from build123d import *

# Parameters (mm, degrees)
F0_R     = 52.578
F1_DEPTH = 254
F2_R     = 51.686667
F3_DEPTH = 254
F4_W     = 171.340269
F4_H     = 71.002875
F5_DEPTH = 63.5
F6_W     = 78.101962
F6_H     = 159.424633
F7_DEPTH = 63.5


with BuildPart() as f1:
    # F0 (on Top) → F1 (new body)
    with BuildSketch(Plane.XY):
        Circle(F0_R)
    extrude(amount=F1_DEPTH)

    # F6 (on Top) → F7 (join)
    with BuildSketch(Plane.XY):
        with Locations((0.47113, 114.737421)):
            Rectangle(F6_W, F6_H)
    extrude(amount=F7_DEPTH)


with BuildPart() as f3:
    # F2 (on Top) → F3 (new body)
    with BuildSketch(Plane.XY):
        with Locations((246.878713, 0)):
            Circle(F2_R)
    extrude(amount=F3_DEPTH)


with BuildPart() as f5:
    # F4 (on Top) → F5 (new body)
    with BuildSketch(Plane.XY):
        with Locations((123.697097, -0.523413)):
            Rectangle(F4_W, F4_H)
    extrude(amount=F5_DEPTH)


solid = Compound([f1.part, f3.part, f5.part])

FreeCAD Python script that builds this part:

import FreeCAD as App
import Part
import Sketcher

V = App.Vector
Q = App.Units.Quantity

doc = App.newDocument("Part")
body = doc.addObject("PartDesign::Body", "Body")

sketch1 = body.newObject("Sketcher::SketchObject", "Sketch")
sketch1.AttachmentSupport = (doc.getObject("XY_Plane"), [""])
sketch1.MapMode = "FlatFace"
sketch1.addGeometry(Part.Circle(V(0, 0, 0), V(0, 0, 1), 52.578), False)
sketch1.addConstraint(Sketcher.Constraint("Coincident", 0, 3, -1, 1))
sketch1.addConstraint(Sketcher.Constraint("Diameter", 0, Q("4.14 in")))
pad1 = body.newObject("PartDesign::Pad", "Pad")
pad1.Profile = sketch1
pad1.Length = Q("10 in")

sketch2 = body.newObject("Sketcher::SketchObject", "Sketch001")
sketch2.AttachmentSupport = (doc.getObject("XY_Plane"), [""])
sketch2.MapMode = "FlatFace"
sketch2.addGeometry(Part.LineSegment(V(-38.579851, 194.449737, 0), V(-38.579851, 35.025104, 0)), False)
sketch2.addGeometry(Part.LineSegment(V(-38.579851, 35.025104, 0), V(39.522111, 35.025104, 0)), False)
sketch2.addGeometry(Part.LineSegment(V(39.522111, 35.025104, 0), V(39.522111, 194.449737, 0)), False)
sketch2.addGeometry(Part.LineSegment(V(39.522111, 194.449737, 0), V(-38.579851, 194.449737, 0)), False)
sketch2.addConstraint(Sketcher.Constraint("Coincident", 0, 2, 1, 1))
sketch2.addConstraint(Sketcher.Constraint("Coincident", 1, 2, 2, 1))
sketch2.addConstraint(Sketcher.Constraint("Coincident", 2, 2, 3, 1))
sketch2.addConstraint(Sketcher.Constraint("Coincident", 3, 2, 0, 1))
sketch2.addConstraint(Sketcher.Constraint("Vertical", 0))
sketch2.addConstraint(Sketcher.Constraint("Horizontal", 1))
sketch2.addConstraint(Sketcher.Constraint("Vertical", 2))
sketch2.addConstraint(Sketcher.Constraint("Horizontal", 3))
sketch2.addConstraint(Sketcher.Constraint("DistanceX", 1, 1, 1, 2, Q("78.101962 mm")))
sketch2.addConstraint(Sketcher.Constraint("DistanceY", 0, 2, 0, 1, Q("159.424633 mm")))
sketch2.addConstraint(Sketcher.Constraint("DistanceX", 0, 2, -1, 1, Q("38.579851 mm")))
sketch2.addConstraint(Sketcher.Constraint("DistanceY", -1, 1, 0, 2, Q("35.025104 mm")))
pad2 = body.newObject("PartDesign::Pad", "Pad001")
pad2.Profile = sketch2
pad2.Length = Q("2.5 in")
body2 = doc.addObject("PartDesign::Body", "Body001")

sketch3 = body2.newObject("Sketcher::SketchObject", "Sketch002")
sketch3.AttachmentSupport = (doc.getObject("XY_Plane001"), [""])
sketch3.MapMode = "FlatFace"
sketch3.addGeometry(Part.Circle(V(246.878713, 0, 0), V(0, 0, 1), 51.686667), False)
sketch3.addConstraint(Sketcher.Constraint("PointOnObject", 0, 3, -1))
sketch3.addConstraint(Sketcher.Constraint("Diameter", 0, Q("103.373334 mm")))
sketch3.addConstraint(Sketcher.Constraint("DistanceX", -1, 1, 0, 3, Q("246.878713 mm")))
pad3 = body2.newObject("PartDesign::Pad", "Pad002")
pad3.Profile = sketch3
pad3.Length = Q("10 in")
body3 = doc.addObject("PartDesign::Body", "Body002")

sketch4 = body3.newObject("Sketcher::SketchObject", "Sketch003")
sketch4.AttachmentSupport = (doc.getObject("XY_Plane002"), [""])
sketch4.MapMode = "FlatFace"
sketch4.addGeometry(Part.LineSegment(V(38.026963, 34.978024, 0), V(38.026963, -36.02485, 0)), False)
sketch4.addGeometry(Part.LineSegment(V(38.026963, -36.02485, 0), V(209.367232, -36.02485, 0)), False)
sketch4.addGeometry(Part.LineSegment(V(209.367232, -36.02485, 0), V(209.367232, 34.978024, 0)), False)
sketch4.addGeometry(Part.LineSegment(V(209.367232, 34.978024, 0), V(38.026963, 34.978024, 0)), False)
sketch4.addConstraint(Sketcher.Constraint("Coincident", 0, 2, 1, 1))
sketch4.addConstraint(Sketcher.Constraint("Coincident", 1, 2, 2, 1))
sketch4.addConstraint(Sketcher.Constraint("Coincident", 2, 2, 3, 1))
sketch4.addConstraint(Sketcher.Constraint("Coincident", 3, 2, 0, 1))
sketch4.addConstraint(Sketcher.Constraint("Vertical", 0))
sketch4.addConstraint(Sketcher.Constraint("Horizontal", 1))
sketch4.addConstraint(Sketcher.Constraint("Vertical", 2))
sketch4.addConstraint(Sketcher.Constraint("Horizontal", 3))
sketch4.addConstraint(Sketcher.Constraint("DistanceX", 1, 1, 1, 2, Q("171.340269 mm")))
sketch4.addConstraint(Sketcher.Constraint("DistanceY", 0, 2, 0, 1, Q("71.002875 mm")))
sketch4.addConstraint(Sketcher.Constraint("DistanceY", 0, 2, -1, 1, Q("36.02485 mm")))
sketch4.addConstraint(Sketcher.Constraint("DistanceX", -1, 1, 1, 2, Q("209.367232 mm")))
pad4 = body3.newObject("PartDesign::Pad", "Pad003")
pad4.Profile = sketch4
pad4.Length = Q("2.5 in")

doc.recompute()
